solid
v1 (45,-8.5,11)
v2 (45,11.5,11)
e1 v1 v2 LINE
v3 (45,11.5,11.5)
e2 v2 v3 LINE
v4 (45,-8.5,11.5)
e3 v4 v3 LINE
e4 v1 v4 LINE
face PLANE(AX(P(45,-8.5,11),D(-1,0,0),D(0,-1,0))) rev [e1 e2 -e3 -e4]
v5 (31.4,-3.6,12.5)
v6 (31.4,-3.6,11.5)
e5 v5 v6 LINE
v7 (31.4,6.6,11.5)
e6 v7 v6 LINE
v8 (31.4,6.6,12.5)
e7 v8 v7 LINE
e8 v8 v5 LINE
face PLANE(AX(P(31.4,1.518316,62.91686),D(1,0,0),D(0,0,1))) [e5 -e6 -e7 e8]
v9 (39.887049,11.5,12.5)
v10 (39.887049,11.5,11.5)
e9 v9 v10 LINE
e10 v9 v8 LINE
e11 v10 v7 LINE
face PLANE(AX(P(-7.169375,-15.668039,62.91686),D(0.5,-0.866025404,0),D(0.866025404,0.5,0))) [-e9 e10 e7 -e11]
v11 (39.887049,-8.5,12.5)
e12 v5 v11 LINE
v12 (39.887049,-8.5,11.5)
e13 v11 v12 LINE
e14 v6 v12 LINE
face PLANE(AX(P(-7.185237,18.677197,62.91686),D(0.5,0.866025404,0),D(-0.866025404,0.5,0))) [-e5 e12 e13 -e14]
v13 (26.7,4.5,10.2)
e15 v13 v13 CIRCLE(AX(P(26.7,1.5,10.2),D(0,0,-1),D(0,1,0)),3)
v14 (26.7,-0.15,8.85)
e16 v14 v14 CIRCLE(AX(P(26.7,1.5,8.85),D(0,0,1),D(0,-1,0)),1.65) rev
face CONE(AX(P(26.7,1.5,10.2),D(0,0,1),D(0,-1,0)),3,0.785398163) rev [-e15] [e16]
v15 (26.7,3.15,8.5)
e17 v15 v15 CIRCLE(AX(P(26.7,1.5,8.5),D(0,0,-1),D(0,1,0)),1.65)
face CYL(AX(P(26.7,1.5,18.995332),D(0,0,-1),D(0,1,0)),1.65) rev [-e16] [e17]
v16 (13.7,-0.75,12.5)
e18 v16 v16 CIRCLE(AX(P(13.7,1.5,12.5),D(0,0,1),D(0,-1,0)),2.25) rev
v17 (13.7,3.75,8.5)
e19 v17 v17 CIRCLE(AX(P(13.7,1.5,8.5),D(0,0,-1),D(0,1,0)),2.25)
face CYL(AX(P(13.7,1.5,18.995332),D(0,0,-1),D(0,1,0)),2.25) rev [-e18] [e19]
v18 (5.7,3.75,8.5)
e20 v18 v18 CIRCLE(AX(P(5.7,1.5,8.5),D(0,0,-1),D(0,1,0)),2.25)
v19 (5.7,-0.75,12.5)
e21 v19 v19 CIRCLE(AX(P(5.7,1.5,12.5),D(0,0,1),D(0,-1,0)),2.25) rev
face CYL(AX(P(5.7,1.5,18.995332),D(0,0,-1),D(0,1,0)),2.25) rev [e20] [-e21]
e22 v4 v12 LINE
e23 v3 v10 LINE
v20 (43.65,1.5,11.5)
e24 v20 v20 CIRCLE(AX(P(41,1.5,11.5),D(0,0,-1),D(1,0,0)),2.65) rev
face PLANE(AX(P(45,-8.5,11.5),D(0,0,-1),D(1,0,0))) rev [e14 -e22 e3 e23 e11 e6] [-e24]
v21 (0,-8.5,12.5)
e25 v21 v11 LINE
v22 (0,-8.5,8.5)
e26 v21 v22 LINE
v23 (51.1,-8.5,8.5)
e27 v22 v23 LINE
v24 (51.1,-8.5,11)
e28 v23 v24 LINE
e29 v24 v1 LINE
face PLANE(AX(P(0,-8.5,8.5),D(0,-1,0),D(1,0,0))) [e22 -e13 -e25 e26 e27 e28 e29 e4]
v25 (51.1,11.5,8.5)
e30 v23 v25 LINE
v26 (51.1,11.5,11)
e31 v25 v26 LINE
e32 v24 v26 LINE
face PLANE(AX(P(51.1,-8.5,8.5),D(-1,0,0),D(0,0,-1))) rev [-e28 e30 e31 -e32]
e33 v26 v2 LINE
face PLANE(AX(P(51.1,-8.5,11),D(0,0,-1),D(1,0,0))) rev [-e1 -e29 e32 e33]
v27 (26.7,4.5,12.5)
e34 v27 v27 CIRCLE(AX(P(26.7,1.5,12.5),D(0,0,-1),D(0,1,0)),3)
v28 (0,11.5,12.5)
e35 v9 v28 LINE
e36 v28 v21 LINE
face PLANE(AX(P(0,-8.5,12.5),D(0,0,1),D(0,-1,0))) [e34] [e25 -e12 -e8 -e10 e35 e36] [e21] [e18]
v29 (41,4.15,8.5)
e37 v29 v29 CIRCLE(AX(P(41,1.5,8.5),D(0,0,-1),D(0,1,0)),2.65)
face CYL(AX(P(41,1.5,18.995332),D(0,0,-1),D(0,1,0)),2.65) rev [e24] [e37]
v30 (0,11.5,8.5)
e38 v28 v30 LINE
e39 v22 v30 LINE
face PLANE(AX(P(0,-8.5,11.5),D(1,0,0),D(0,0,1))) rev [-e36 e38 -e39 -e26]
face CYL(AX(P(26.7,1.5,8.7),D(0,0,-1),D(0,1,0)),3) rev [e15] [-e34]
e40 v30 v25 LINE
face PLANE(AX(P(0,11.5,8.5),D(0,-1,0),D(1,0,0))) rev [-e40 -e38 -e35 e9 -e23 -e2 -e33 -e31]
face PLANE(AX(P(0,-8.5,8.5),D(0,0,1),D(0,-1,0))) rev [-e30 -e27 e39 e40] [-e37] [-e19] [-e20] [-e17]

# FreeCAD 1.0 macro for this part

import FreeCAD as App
import Part
import Sketcher
from FreeCAD import Vector
Q = App.Units.Quantity


def add_polygon(sketch, points):
    """Adds a closed chain of lines whose ends are joined by coincident constraints."""
    first, n = sketch.GeometryCount, len(points)
    for a, b in zip(points, points[1:] + points[:1]):
        sketch.addGeometry(Part.LineSegment(App.Vector(*a, 0), App.Vector(*b, 0)), False)
    for i in range(n):
        sketch.addConstraint(Sketcher.Constraint("Coincident", first + i, 2, first + (i + 1) % n, 1))

doc = App.newDocument("Part")
body = doc.addObject("PartDesign::Body", "Body")

# Sketch on XY plane
sketch1 = body.newObject("Sketcher::SketchObject", "Sketch")
sketch1.AttachmentSupport = (doc.getObject("XY_Plane"), [""])
sketch1.MapMode = "FlatFace"
add_polygon(sketch1, [(0, 0), (51.1, 0), (51.1, 2.5), (45, 2.5), (45, 3), (0, 3)])  # lines 0-5
sketch1.addConstraint(Sketcher.Constraint("Horizontal", 0))
sketch1.addConstraint(Sketcher.Constraint("Vertical", 1))
sketch1.addConstraint(Sketcher.Constraint("Horizontal", 2))
sketch1.addConstraint(Sketcher.Constraint("Vertical", 3))
sketch1.addConstraint(Sketcher.Constraint("Horizontal", 4))
sketch1.addConstraint(Sketcher.Constraint("Vertical", 5))
sketch1.addConstraint(Sketcher.Constraint("Coincident", 5, 2, -1, 1))
sketch1.addConstraint(Sketcher.Constraint("DistanceX", 4, 2, 4, 1, Q("45 mm")))
sketch1.addConstraint(Sketcher.Constraint("DistanceY", 5, 2, 5, 1, Q("3 mm")))
sketch1.addConstraint(Sketcher.Constraint("DistanceX", 0, 1, 0, 2, Q("51.1 mm")))
sketch1.addConstraint(Sketcher.Constraint("DistanceY", 1, 1, 1, 2, Q("2.5 mm")))
pad1 = body.newObject("PartDesign::Pad", "Pad")
pad1.Profile = sketch1
pad1.Length = 20

# Sketch on XZ plane
sketch2 = body.newObject("Sketcher::SketchObject", "Sketch001")
sketch2.AttachmentSupport = (doc.getObject("XZ_Plane"), [""])
sketch2.MapMode = "FlatFace"
sketch2.addGeometry(Part.Circle(Vector(26.7, 10, 0), Vector(0, 0, 1), 1.65), False)
sketch2.addGeometry(Part.Circle(Vector(41, 10, 0), Vector(0, 0, 1), 2.65), False)
sketch2.addGeometry(Part.Circle(Vector(13.7, 10, 0), Vector(0, 0, 1), 2.25), False)
sketch2.addGeometry(Part.Circle(Vector(5.7, 10, 0), Vector(0, 0, 1), 2.25), False)
sketch2.addConstraint(Sketcher.Constraint("Equal", 2, 3))
sketch2.addConstraint(Sketcher.Constraint("Horizontal", 0, 3, 1, 3))
sketch2.addConstraint(Sketcher.Constraint("Horizontal", 1, 3, 2, 3))
sketch2.addConstraint(Sketcher.Constraint("Horizontal", 2, 3, 3, 3))
sketch2.addConstraint(Sketcher.Constraint("Diameter", 0, Q("3.3 mm")))
sketch2.addConstraint(Sketcher.Constraint("Diameter", 1, Q("5.3 mm")))
sketch2.addConstraint(Sketcher.Constraint("Diameter", 2, Q("4.5 mm")))
sketch2.addConstraint(Sketcher.Constraint("DistanceY", -1, 1, 0, 3, Q("10 mm")))
sketch2.addConstraint(Sketcher.Constraint("DistanceX", -1, 1, 1, 3, Q("41 mm")))
sketch2.addConstraint(Sketcher.Constraint("DistanceX", 2, 3, 0, 3, Q("13 mm")))
sketch2.addConstraint(Sketcher.Constraint("DistanceX", 3, 3, 2, 3, Q("8 mm")))
sketch2.addConstraint(Sketcher.Constraint("DistanceX", -1, 1, 0, 3, Q("26.7 mm")))
pocket1 = body.newObject("PartDesign::Pocket", "Pocket")
pocket1.Profile = sketch2
pocket1.Length = 3

# Sketch on XZ plane
sketch3 = body.newObject("Sketcher::SketchObject", "Sketch002")
sketch3.AttachmentSupport = (doc.getObject("XZ_Plane"), [""])
sketch3.MapMode = "FlatFace"
sketch3.AttachmentOffset = App.Placement(Vector(0, 0, -3), App.Rotation())
add_polygon(sketch3, [(39.887049, 0), (0, 0), (0, 8), (-2, 8), (-2, 10), (0, 10), (0, 20), (39.887049, 20), (31.4, 15.1), (31.4, 4.9)])  # lines 0-9
sketch3.addGeometry(Part.Circle(Vector(13.7, 10, 0), Vector(0, 0, 1), 2.25), False)  # 10
sketch3.addGeometry(Part.Circle(Vector(5.7, 10, 0), Vector(0, 0, 1), 2.25), False)  # 11
sketch3.addGeometry(Part.Circle(Vector(26.7, 10, 0), Vector(0, 0, 1), 1.65), False)  # 12
sketch3.addConstraint(Sketcher.Constraint("Horizontal", 0))
sketch3.addConstraint(Sketcher.Constraint("Vertical", 1))
sketch3.addConstraint(Sketcher.Constraint("Horizontal", 2))
sketch3.addConstraint(Sketcher.Constraint("Vertical", 3))
sketch3.addConstraint(Sketcher.Constraint("Horizontal", 4))
sketch3.addConstraint(Sketcher.Constraint("Vertical", 5))
sketch3.addConstraint(Sketcher.Constraint("Horizontal", 6))
sketch3.addConstraint(Sketcher.Constraint("Vertical", 8))
sketch3.addConstraint(Sketcher.Constraint("Coincident", 0, 2, -1, 1))
sketch3.addConstraint(Sketcher.Constraint("Equal", 10, 11))
sketch3.addConstraint(Sketcher.Constraint("PointOnObject", 4, 2, -2))
sketch3.addConstraint(Sketcher.Constraint("Horizontal", 10, 3, 11, 3))
sketch3.addConstraint(Sketcher.Constraint("Horizontal", 11, 3, 12, 3))
sketch3.addConstraint(Sketcher.Constraint("Horizontal", 12, 3, 3, 2))
sketch3.addConstraint(Sketcher.Constraint("Vertical", 6, 2, 9, 2))
sketch3.addConstraint(Sketcher.Constraint("Equal", 4, 3))
sketch3.addConstraint(Sketcher.Constraint("Equal", 7, 9))
sketch3.addConstraint(Sketcher.Constraint("Diameter", 10, Q("4.5 mm")))
sketch3.addConstraint(Sketcher.Constraint("Diameter", 12, Q("3.3 mm")))
sketch3.addConstraint(Sketcher.Constraint("DistanceX", 2, 2, 2, 1, Q("2 mm")))
sketch3.addConstraint(Sketcher.Constraint("DistanceY", 1, 1, 1, 2, Q("8 mm")))
sketch3.addConstraint(Sketcher.Constraint("DistanceY", 5, 1, 5, 2, Q("10 mm")))
sketch3.addConstraint(Sketcher.Constraint("Angle", 7, Q("-150 deg")))
sketch3.addConstraint(Sketcher.Constraint("DistanceY", 8, 2, 8, 1, Q("10.2 mm")))
sketch3.addConstraint(Sketcher.Constraint("DistanceX", 11, 3, 10, 3, Q("8 mm")))
sketch3.addConstraint(Sketcher.Constraint("DistanceX", 10, 3, 12, 3, Q("13 mm")))
sketch3.addConstraint(Sketcher.Constraint("DistanceX", -1, 1, 10, 3, Q("13.7 mm")))
sketch3.addConstraint(Sketcher.Constraint("DistanceX", -1, 1, 7, 2, Q("31.4 mm")))
pad2 = body.newObject("PartDesign::Pad", "Pad001")
pad2.Profile = sketch3
pad2.Length = 1
pad2.Reversed = True

# Sketch on XY plane
sketch4 = body.newObject("Sketcher::SketchObject", "Sketch003")
sketch4.AttachmentSupport = (doc.getObject("XY_Plane"), [""])
sketch4.MapMode = "FlatFace"
sketch4.AttachmentOffset = App.Placement(Vector(0, 0, 10), App.Rotation())
add_polygon(sketch4, [(23.7, 4), (23.7, 1.7), (25.2, 0.2), (26.7, 0.2), (26.7, 4)])  # lines 0-4
sketch4.addGeometry(Part.LineSegment(Vector(26.7, 0.2, 0), Vector(26.7, 4, 0)), True)  # axis
sketch4.addConstraint(Sketcher.Constraint("Vertical", 0))
sketch4.addConstraint(Sketcher.Constraint("Horizontal", 2))
sketch4.addConstraint(Sketcher.Constraint("Vertical", 3))
sketch4.addConstraint(Sketcher.Constraint("Horizontal", 4))
sketch4.addConstraint(Sketcher.Constraint("Vertical", 5))
sketch4.addConstraint(Sketcher.Constraint("Coincident", 5, 1, 2, 2))
sketch4.addConstraint(Sketcher.Constraint("Horizontal", 4, 2, 5, 2))
sketch4.addConstraint(Sketcher.Constraint("DistanceX", 4, 2, 4, 1, Q("3 mm")))
sketch4.addConstraint(Sketcher.Constraint("Angle", 1, Q("-45 deg")))
sketch4.addConstraint(Sketcher.Constraint("DistanceX", 2, 1, 2, 2, Q("1.5 mm")))
sketch4.addConstraint(Sketcher.Constraint("DistanceY", 0, 2, 0, 1, Q("2.3 mm")))
sketch4.addConstraint(Sketcher.Constraint("DistanceY", -1, 1, 3, 2, Q("4 mm")))
sketch4.addConstraint(Sketcher.Constraint("DistanceX", -1, 1, 0, 2, Q("23.7 mm")))
groove = body.newObject("PartDesign::Groove", "Groove")
groove.Profile = sketch4
groove.ReferenceAxis = (sketch4, ["Axis0"])
groove.Angle = 360

# Sketch on XZ plane
sketch5 = body.newObject("Sketcher::SketchObject", "Sketch004")
sketch5.AttachmentSupport = (doc.getObject("XZ_Plane"), [""])
sketch5.MapMode = "FlatFace"
sketch5.AttachmentOffset = App.Placement(Vector(0, 0, -4), App.Rotation())
add_polygon(sketch5, [(-2, 8), (-2, 10), (0, 10), (0, 8)])  # lines 0-3
sketch5.addConstraint(Sketcher.Constraint("Vertical", 0))
sketch5.addConstraint(Sketcher.Constraint("Horizontal", 1))
sketch5.addConstraint(Sketcher.Constraint("Vertical", 2))
sketch5.addConstraint(Sketcher.Constraint("Horizontal", 3))
sketch5.addConstraint(Sketcher.Constraint("PointOnObject", 1, 2, -2))
sketch5.addConstraint(Sketcher.Constraint("Equal", 3, 0))
sketch5.addConstraint(Sketcher.Constraint("DistanceX", 1, 1, 1, 2, Q("2 mm")))
sketch5.addConstraint(Sketcher.Constraint("DistanceY", -1, 1, 0, 2, Q("10 mm")))
pocket2 = body.newObject("PartDesign::Pocket", "Pocket001")
pocket2.Profile = sketch5
pocket2.Length = 1
pocket2.Reversed = True
body2 = doc.addObject("PartDesign::Body", "Body001")
doc.recompute()

body.Placement = App.Placement(Vector(0, 11.5, 8.5), App.Rotation(Vector(1, 0, 0), 90))
boolean = body2.newObject("PartDesign::Boolean", "Boolean")
boolean.Type = "Fuse"
boolean.addObjects([body])

doc.recompute()
